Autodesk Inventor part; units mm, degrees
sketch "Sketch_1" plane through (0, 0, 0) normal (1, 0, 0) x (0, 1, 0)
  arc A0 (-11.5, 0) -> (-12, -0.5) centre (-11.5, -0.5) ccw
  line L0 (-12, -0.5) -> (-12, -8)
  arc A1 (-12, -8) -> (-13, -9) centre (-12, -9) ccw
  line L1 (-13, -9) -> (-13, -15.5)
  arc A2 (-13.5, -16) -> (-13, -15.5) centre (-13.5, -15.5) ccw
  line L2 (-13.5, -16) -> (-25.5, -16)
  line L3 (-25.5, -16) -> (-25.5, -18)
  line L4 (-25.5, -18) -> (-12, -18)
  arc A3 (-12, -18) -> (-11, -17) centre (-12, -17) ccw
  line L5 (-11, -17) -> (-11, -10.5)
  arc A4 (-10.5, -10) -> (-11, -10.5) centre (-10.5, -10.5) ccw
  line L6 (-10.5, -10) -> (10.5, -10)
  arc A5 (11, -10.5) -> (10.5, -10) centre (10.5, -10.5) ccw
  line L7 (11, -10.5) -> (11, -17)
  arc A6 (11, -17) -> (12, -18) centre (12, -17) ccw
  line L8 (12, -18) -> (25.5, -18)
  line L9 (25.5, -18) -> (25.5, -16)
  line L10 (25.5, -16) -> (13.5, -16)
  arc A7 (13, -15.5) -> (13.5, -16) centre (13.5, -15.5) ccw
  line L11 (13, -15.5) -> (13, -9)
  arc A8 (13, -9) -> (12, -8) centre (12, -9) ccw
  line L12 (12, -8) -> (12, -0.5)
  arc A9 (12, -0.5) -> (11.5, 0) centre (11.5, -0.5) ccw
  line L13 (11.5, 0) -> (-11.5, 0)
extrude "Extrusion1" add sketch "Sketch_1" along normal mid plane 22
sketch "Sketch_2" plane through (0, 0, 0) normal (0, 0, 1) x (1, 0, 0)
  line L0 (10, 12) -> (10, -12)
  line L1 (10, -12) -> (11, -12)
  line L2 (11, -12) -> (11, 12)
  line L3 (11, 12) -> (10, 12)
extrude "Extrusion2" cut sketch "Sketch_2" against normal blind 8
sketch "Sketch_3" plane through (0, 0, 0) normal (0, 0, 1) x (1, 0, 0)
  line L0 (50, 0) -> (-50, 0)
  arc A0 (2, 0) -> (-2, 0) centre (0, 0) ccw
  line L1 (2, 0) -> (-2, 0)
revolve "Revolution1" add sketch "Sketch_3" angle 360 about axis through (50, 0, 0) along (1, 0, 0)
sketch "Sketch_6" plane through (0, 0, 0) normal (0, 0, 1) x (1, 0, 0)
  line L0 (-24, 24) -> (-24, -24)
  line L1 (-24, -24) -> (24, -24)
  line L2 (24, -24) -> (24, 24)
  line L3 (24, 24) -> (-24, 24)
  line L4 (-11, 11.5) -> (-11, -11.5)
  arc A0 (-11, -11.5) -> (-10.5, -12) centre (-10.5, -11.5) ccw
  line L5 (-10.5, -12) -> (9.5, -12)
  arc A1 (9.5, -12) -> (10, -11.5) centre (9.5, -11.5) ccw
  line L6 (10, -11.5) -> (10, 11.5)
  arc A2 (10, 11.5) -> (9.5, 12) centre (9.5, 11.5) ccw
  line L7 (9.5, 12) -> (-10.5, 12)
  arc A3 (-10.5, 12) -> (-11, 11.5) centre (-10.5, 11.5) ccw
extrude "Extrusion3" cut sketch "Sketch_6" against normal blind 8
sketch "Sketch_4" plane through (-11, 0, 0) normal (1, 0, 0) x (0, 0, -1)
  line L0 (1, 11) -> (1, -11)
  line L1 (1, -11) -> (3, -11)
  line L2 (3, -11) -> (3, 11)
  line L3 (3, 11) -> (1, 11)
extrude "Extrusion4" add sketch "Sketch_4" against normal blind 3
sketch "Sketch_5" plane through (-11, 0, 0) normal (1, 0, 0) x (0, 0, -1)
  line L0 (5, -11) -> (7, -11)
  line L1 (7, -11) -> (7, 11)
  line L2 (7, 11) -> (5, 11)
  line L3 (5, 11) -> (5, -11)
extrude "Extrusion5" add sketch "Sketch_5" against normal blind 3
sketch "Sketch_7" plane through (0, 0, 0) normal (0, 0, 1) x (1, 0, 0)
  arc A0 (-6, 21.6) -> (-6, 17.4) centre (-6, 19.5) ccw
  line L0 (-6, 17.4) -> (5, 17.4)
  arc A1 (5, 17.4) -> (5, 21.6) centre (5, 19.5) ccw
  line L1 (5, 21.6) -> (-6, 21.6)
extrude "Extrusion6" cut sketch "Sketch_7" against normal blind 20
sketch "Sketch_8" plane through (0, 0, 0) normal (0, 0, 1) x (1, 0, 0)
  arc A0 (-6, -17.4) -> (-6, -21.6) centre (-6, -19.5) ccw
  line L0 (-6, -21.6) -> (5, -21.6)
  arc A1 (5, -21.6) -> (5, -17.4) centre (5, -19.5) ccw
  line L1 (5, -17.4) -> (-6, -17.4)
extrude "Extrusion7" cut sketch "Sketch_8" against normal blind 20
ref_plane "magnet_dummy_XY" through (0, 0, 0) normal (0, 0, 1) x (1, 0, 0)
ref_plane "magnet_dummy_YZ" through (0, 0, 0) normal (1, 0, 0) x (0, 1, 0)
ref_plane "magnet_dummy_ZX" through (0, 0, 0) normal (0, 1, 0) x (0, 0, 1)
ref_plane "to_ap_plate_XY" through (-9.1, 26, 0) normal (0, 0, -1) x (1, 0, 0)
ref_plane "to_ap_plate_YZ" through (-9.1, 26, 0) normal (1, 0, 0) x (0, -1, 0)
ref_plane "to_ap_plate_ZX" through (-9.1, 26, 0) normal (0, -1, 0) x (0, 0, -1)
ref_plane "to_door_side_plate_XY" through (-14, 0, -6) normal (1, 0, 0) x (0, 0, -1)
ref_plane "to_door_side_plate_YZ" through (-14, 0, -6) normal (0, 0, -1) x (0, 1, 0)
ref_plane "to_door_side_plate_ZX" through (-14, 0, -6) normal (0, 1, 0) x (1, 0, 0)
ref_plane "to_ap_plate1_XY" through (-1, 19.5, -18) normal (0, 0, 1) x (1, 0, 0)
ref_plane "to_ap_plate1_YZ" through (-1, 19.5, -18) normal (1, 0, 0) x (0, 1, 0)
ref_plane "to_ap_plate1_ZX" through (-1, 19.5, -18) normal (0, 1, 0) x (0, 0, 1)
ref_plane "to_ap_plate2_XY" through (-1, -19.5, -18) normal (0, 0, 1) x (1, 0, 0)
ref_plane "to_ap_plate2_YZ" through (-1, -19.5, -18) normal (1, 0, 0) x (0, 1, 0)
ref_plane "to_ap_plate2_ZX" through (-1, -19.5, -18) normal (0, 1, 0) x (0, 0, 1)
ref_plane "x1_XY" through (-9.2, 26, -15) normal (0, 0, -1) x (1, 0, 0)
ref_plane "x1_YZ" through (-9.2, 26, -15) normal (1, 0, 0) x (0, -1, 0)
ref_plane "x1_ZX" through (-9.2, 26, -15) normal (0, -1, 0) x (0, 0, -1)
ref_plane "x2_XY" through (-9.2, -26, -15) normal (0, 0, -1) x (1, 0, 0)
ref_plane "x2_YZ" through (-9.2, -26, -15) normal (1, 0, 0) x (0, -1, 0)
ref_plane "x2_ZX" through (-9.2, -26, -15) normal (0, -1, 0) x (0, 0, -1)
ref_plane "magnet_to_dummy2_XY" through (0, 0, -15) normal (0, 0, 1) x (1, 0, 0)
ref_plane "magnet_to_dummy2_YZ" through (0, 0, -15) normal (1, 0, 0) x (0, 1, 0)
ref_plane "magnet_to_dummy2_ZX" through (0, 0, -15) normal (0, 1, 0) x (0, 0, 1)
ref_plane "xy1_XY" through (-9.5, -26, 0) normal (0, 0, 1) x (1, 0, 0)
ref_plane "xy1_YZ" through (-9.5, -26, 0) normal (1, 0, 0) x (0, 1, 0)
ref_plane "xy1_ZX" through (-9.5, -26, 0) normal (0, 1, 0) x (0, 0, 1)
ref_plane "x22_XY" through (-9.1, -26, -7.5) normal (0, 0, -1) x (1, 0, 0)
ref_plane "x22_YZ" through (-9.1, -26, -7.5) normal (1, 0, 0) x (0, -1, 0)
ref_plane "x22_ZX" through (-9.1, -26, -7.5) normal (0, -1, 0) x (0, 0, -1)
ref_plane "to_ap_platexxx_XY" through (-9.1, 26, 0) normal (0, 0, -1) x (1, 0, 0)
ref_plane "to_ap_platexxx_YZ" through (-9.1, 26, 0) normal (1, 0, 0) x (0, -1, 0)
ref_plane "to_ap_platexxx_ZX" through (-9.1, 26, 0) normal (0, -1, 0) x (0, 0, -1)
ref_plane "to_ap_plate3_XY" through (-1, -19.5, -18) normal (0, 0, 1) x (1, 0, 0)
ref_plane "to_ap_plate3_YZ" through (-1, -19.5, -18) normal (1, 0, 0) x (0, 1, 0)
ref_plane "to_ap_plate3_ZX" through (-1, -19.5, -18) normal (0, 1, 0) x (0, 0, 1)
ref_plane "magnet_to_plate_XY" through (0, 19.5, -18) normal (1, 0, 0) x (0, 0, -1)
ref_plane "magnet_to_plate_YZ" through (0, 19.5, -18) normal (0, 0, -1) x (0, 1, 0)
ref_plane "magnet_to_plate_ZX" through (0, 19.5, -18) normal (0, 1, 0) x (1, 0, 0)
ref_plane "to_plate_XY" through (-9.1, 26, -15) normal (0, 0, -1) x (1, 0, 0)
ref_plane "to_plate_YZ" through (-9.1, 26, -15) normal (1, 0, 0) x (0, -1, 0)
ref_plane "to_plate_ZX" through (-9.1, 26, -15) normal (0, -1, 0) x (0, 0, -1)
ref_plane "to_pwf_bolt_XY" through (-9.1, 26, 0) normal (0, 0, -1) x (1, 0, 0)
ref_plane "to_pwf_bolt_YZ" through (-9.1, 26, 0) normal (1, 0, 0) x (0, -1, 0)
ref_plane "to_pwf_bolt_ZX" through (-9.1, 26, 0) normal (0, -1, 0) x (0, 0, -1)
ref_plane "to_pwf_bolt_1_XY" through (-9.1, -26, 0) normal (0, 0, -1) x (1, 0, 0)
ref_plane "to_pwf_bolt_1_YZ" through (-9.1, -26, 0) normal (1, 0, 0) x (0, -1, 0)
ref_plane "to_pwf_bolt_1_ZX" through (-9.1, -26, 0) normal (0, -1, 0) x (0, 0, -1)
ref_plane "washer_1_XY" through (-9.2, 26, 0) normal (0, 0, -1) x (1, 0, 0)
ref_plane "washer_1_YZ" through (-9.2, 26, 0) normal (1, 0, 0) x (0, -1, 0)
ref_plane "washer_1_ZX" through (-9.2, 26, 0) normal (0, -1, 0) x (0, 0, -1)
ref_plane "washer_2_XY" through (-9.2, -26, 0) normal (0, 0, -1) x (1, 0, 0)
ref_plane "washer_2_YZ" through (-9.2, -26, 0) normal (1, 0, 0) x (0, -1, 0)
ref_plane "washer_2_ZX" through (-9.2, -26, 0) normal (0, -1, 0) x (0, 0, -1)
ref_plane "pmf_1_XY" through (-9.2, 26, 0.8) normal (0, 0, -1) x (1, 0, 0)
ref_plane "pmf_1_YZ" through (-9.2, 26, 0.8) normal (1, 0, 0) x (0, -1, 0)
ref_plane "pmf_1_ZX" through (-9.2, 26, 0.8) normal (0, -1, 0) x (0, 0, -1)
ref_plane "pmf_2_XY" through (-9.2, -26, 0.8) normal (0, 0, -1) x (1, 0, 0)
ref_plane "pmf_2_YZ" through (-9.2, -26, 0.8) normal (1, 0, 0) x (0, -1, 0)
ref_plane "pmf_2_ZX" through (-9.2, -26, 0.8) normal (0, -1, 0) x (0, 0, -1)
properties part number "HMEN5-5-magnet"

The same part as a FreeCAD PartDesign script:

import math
import FreeCAD as App
import Part
import Sketcher
from FreeCAD import Vector


def add_polygon(sketch, points):
    """Adds a closed chain of lines whose ends are joined by coincident constraints."""
    first, n = sketch.GeometryCount, len(points)
    for a, b in zip(points, points[1:] + points[:1]):
        sketch.addGeometry(Part.LineSegment(App.Vector(*a, 0), App.Vector(*b, 0)), False)
    for i in range(n):
        sketch.addConstraint(Sketcher.Constraint("Coincident", first + i, 2, first + (i + 1) % n, 1))

doc = App.newDocument("Part")
body = doc.addObject("PartDesign::Body", "Body")

# Sketch on YZ plane
sketch1 = doc.addObject("Sketcher::SketchObject", "Sketch")
body.addObject(sketch1)
sketch1.AttachmentSupport = (doc.YZ_Plane, [""])
sketch1.MapMode = "FlatFace"
sketch1.addGeometry([
    Part.LineSegment(Vector(11.5, 0, 0), Vector(-11.5, 0, 0)),  # 0
    Part.ArcOfCircle(Part.Circle(Vector(-11.5, -0.5, 0), Vector(0, 0, 1), 0.5), math.radians(90), math.radians(180)),  # 1
    Part.LineSegment(Vector(-12, -0.5, 0), Vector(-12, -8, 0)),  # 2
    Part.ArcOfCircle(Part.Circle(Vector(-12, -9, 0), Vector(0, 0, 1), 1), math.radians(90), math.radians(180)),  # 3
    Part.LineSegment(Vector(-13, -9, 0), Vector(-13, -15.5, 0)),  # 4
    Part.ArcOfCircle(Part.Circle(Vector(-13.5, -15.5, 0), Vector(0, 0, 1), 0.5), math.radians(-90), math.radians(0)),  # 5
    Part.LineSegment(Vector(-13.5, -16, 0), Vector(-25.5, -16, 0)),  # 6
    Part.LineSegment(Vector(-25.5, -16, 0), Vector(-25.5, -18, 0)),  # 7
    Part.LineSegment(Vector(-25.5, -18, 0), Vector(-12, -18, 0)),  # 8
    Part.ArcOfCircle(Part.Circle(Vector(-12, -17, 0), Vector(0, 0, 1), 1), math.radians(-90), math.radians(0)),  # 9
    Part.LineSegment(Vector(-11, -17, 0), Vector(-11, -10.5, 0)),  # 10
    Part.ArcOfCircle(Part.Circle(Vector(-10.5, -10.5, 0), Vector(0, 0, 1), 0.5), math.radians(90), math.radians(180)),  # 11
    Part.LineSegment(Vector(-10.5, -10, 0), Vector(10.5, -10, 0)),  # 12
    Part.ArcOfCircle(Part.Circle(Vector(10.5, -10.5, 0), Vector(0, 0, 1), 0.5), math.radians(0), math.radians(90)),  # 13
    Part.LineSegment(Vector(11, -10.5, 0), Vector(11, -17, 0)),  # 14
    Part.ArcOfCircle(Part.Circle(Vector(12, -17, 0), Vector(0, 0, 1), 1), math.radians(180), math.radians(270)),  # 15
    Part.LineSegment(Vector(12, -18, 0), Vector(25.5, -18, 0)),  # 16
    Part.LineSegment(Vector(25.5, -18, 0), Vector(25.5, -16, 0)),  # 17
    Part.LineSegment(Vector(25.5, -16, 0), Vector(13.5, -16, 0)),  # 18
    Part.ArcOfCircle(Part.Circle(Vector(13.5, -15.5, 0), Vector(0, 0, 1), 0.5), math.radians(180), math.radians(270)),  # 19
    Part.LineSegment(Vector(13, -15.5, 0), Vector(13, -9, 0)),  # 20
    Part.ArcOfCircle(Part.Circle(Vector(12, -9, 0), Vector(0, 0, 1), 1), math.radians(0), math.radians(90)),  # 21
    Part.LineSegment(Vector(12, -8, 0), Vector(12, -0.5, 0)),  # 22
    Part.ArcOfCircle(Part.Circle(Vector(11.5, -0.5, 0), Vector(0, 0, 1), 0.5), math.radians(0), math.radians(90)),  # 23
], False)
sketch1.addConstraint([
    Sketcher.Constraint("Tangent", 0, 2, 1, 1),
    Sketcher.Constraint("Tangent", 1, 2, 2, 1),
    Sketcher.Constraint("Coincident", 2, 2, 3, 1),
    Sketcher.Constraint("Tangent", 3, 2, 4, 1),
    Sketcher.Constraint("Tangent", 4, 2, 5, 2),
    Sketcher.Constraint("Tangent", 5, 1, 6, 1),
    Sketcher.Constraint("Coincident", 6, 2, 7, 1),
    Sketcher.Constraint("Coincident", 7, 2, 8, 1),
    Sketcher.Constraint("Tangent", 8, 2, 9, 1),
    Sketcher.Constraint("Tangent", 9, 2, 10, 1),
    Sketcher.Constraint("Tangent", 10, 2, 11, 2),
    Sketcher.Constraint("Tangent", 11, 1, 12, 1),
    Sketcher.Constraint("Tangent", 12, 2, 13, 2),
    Sketcher.Constraint("Tangent", 13, 1, 14, 1),
    Sketcher.Constraint("Tangent", 14, 2, 15, 1),
    Sketcher.Constraint("Tangent", 15, 2, 16, 1),
    Sketcher.Constraint("Coincident", 16, 2, 17, 1),
    Sketcher.Constraint("Coincident", 17, 2, 18, 1),
    Sketcher.Constraint("Tangent", 18, 2, 19, 2),
    Sketcher.Constraint("Tangent", 19, 1, 20, 1),
    Sketcher.Constraint("Tangent", 20, 2, 21, 1),
    Sketcher.Constraint("Coincident", 21, 2, 22, 1),
    Sketcher.Constraint("Tangent", 22, 2, 23, 1),
    Sketcher.Constraint("Tangent", 23, 2, 0, 1),
    Sketcher.Constraint("Horizontal", 0),
    Sketcher.Constraint("Vertical", 2),
    Sketcher.Constraint("Vertical", 4),
    Sketcher.Constraint("Horizontal", 6),
    Sketcher.Constraint("Vertical", 7),
    Sketcher.Constraint("Horizontal", 8),
    Sketcher.Constraint("Vertical", 10),
    Sketcher.Constraint("Horizontal", 12),
    Sketcher.Constraint("Vertical", 14),
    Sketcher.Constraint("Horizontal", 16),
    Sketcher.Constraint("Vertical", 17),
    Sketcher.Constraint("Horizontal", 18),
    Sketcher.Constraint("Vertical", 20),
    Sketcher.Constraint("Vertical", 22),
    Sketcher.Constraint("Equal", 1, 5),
    Sketcher.Constraint("Equal", 3, 9),
    Sketcher.Constraint("Equal", 5, 11),
    Sketcher.Constraint("Equal", 11, 13),
    Sketcher.Constraint("Equal", 9, 15),
    Sketcher.Constraint("Equal", 13, 19),
    Sketcher.Constraint("Equal", 15, 21),
    Sketcher.Constraint("Equal", 19, 23),
    Sketcher.Constraint("Symmetric", 0, 2, 23, 2, -1, 1),
    Sketcher.Constraint("Symmetric", 9, 3, 15, 3, -2),
    Sketcher.Constraint("Symmetric", 5, 3, 19, 3, -2),
    Sketcher.Constraint("Horizontal", 3, 3, 21, 3),
    Sketcher.Constraint("Vertical", 3, 3, 9, 3),
    Sketcher.Constraint("Vertical", 9, 3, 1, 2),
    Sketcher.Constraint("Equal", 8, 16),
    Sketcher.Constraint("Equal", 4, 10),
    Sketcher.Constraint("Radius", 3, 1.0),
    Sketcher.Constraint("Radius", 1, 0.5),
    Sketcher.Constraint("DistanceX", 0, 2, 0, 1, 23.0),
    Sketcher.Constraint("DistanceX", 6, 2, 6, 1, 12.0),
    Sketcher.Constraint("DistanceY", 7, 2, 7, 1, 2.0),
    Sketcher.Constraint("DistanceY", 2, 2, 2, 1, 7.5),
    Sketcher.Constraint("DistanceY", 4, 2, 4, 1, 6.5),
])
pad1 = doc.addObject("PartDesign::Pad", "Pad")
body.addObject(pad1)
pad1.Profile = sketch1
pad1.Length = 22
pad1.Midplane = True

# Sketch on XY plane
sketch2 = doc.addObject("Sketcher::SketchObject", "Sketch001")
body.addObject(sketch2)
sketch2.AttachmentSupport = (doc.XY_Plane, [""])
sketch2.MapMode = "FlatFace"
add_polygon(sketch2, [(11, 12), (10, 12), (10, -12), (11, -12)])  # lines 0-3
sketch2.addConstraint([
    Sketcher.Constraint("Horizontal", 0),
    Sketcher.Constraint("Vertical", 1),
    Sketcher.Constraint("Horizontal", 2),
    Sketcher.Constraint("Vertical", 3),
    Sketcher.Constraint("DistanceX", 0, 2, 0, 1, 1.0),
    Sketcher.Constraint("DistanceY", 1, 2, 1, 1, 24.0),
    Sketcher.Constraint("DistanceX", -1, 1, 0, 2, 10.0),
    Sketcher.Constraint("DistanceY", -1, 1, 0, 2, 12.0),
])
pocket1 = doc.addObject("PartDesign::Pocket", "Pocket")
body.addObject(pocket1)
pocket1.Profile = sketch2
pocket1.Length = 8

# Sketch on XY plane
sketch3 = doc.addObject("Sketcher::SketchObject", "Sketch002")
body.addObject(sketch3)
sketch3.AttachmentSupport = (doc.XY_Plane, [""])
sketch3.MapMode = "FlatFace"
sketch3.addGeometry([
    Part.LineSegment(Vector(-2, 0, 0), Vector(2, 0, 0)),
    Part.ArcOfCircle(Part.Circle(Vector(0, 0, 0), Vector(0, 0, 1), 2), math.radians(0), math.radians(180)),
], False)
sketch3.addConstraint([
    Sketcher.Constraint("Coincident", 0, 1, 1, 2),
    Sketcher.Constraint("Coincident", 1, 1, 0, 2),
    Sketcher.Constraint("Horizontal", 0),
    Sketcher.Constraint("Coincident", 1, 3, -1, 1),
    Sketcher.Constraint("PointOnObject", 0, 1, -1),
    Sketcher.Constraint("Radius", 1, 2.0),
])
revolution = doc.addObject("PartDesign::Revolution", "Revolution")
body.addObject(revolution)
revolution.Profile = sketch3
revolution.ReferenceAxis = (sketch3, ["H_Axis"])
revolution.Angle = 360

# Sketch on XY plane
sketch4 = doc.addObject("Sketcher::SketchObject", "Sketch003")
body.addObject(sketch4)
sketch4.AttachmentSupport = (doc.XY_Plane, [""])
sketch4.MapMode = "FlatFace"
add_polygon(sketch4, [(24, 24), (-24, 24), (-24, -24), (24, -24)])  # lines 0-3
sketch4.addGeometry(Part.LineSegment(Vector(-11, -11.5, 0), Vector(-11, 11.5, 0)), False)  # 4
sketch4.addGeometry(Part.ArcOfCircle(Part.Circle(Vector(-10.5, 11.5, 0), Vector(0, 0, 1), 0.5), math.radians(90), math.radians(180)), False)  # 5
sketch4.addGeometry(Part.LineSegment(Vector(-10.5, 12, 0), Vector(9.5, 12, 0)), False)  # 6
sketch4.addGeometry(Part.ArcOfCircle(Part.Circle(Vector(9.5, 11.5, 0), Vector(0, 0, 1), 0.5), math.radians(0), math.radians(90)), False)  # 7
sketch4.addGeometry(Part.LineSegment(Vector(10, 11.5, 0), Vector(10, -11.5, 0)), False)  # 8
sketch4.addGeometry(Part.ArcOfCircle(Part.Circle(Vector(9.5, -11.5, 0), Vector(0, 0, 1), 0.5), math.radians(-90), math.radians(0)), False)  # 9
sketch4.addGeometry(Part.LineSegment(Vector(9.5, -12, 0), Vector(-10.5, -12, 0)), False)  # 10
sketch4.addGeometry(Part.ArcOfCircle(Part.Circle(Vector(-10.5, -11.5, 0), Vector(0, 0, 1), 0.5), math.radians(180), math.radians(270)), False)  # 11
sketch4.addConstraint([
    Sketcher.Constraint("Tangent", 4, 2, 5, 2),
    Sketcher.Constraint("Tangent", 5, 1, 6, 1),
    Sketcher.Constraint("Tangent", 6, 2, 7, 2),
    Sketcher.Constraint("Tangent", 7, 1, 8, 1),
    Sketcher.Constraint("Tangent", 8, 2, 9, 2),
    Sketcher.Constraint("Tangent", 9, 1, 10, 1),
    Sketcher.Constraint("Tangent", 10, 2, 11, 2),
    Sketcher.Constraint("Tangent", 11, 1, 4, 1),
    Sketcher.Constraint("Horizontal", 0),
    Sketcher.Constraint("Vertical", 1),
    Sketcher.Constraint("Horizontal", 2),
    Sketcher.Constraint("Vertical", 3),
    Sketcher.Constraint("Vertical", 4),
    Sketcher.Constraint("Horizontal", 6),
    Sketcher.Constraint("Vertical", 8),
    Sketcher.Constraint("Horizontal", 10),
    Sketcher.Constraint("Equal", 5, 7),
    Sketcher.Constraint("Equal", 7, 9),
    Sketcher.Constraint("Equal", 9, 11),
    Sketcher.Constraint("Symmetric", 0, 2, 2, 2, -1, 1),
    Sketcher.Constraint("Equal", 2, 1),
    Sketcher.Constraint("Radius", 5, 0.5),
    Sketcher.Constraint("DistanceX", 0, 2, 0, 1, 48.0),
    Sketcher.Constraint("DistanceX", 6, 1, 6, 2, 20.0),
    Sketcher.Constraint("DistanceY", 4, 1, 4, 2, 23.0),
    Sketcher.Constraint("DistanceX", 4, 2, -1, 1, 11.0),
    Sketcher.Constraint("DistanceY", -1, 1, 5, 1, 12.0),
])
pocket2 = doc.addObject("PartDesign::Pocket", "Pocket001")
body.addObject(pocket2)
pocket2.Profile = sketch4
pocket2.Length = 8

# Sketch on YZ plane
sketch5 = doc.addObject("Sketcher::SketchObject", "Sketch004")
body.addObject(sketch5)
sketch5.AttachmentSupport = (doc.YZ_Plane, [""])
sketch5.MapMode = "FlatFace"
sketch5.AttachmentOffset = App.Placement(Vector(0, 0, -11), App.Rotation())
add_polygon(sketch5, [(11, -3), (11, -1), (-11, -1), (-11, -3)])  # lines 0-3
sketch5.addConstraint([
    Sketcher.Constraint("Vertical", 0),
    Sketcher.Constraint("Horizontal", 1),
    Sketcher.Constraint("Vertical", 2),
    Sketcher.Constraint("Horizontal", 3),
    Sketcher.Constraint("DistanceX", 1, 2, 1, 1, 22.0),
    Sketcher.Constraint("DistanceY", 0, 1, 0, 2, 2.0),
    Sketcher.Constraint("DistanceX", -1, 1, 0, 2, 11.0),
    Sketcher.Constraint("DistanceY", 0, 2, -1, 1, 1.0),
])
pad2 = doc.addObject("PartDesign::Pad", "Pad001")
body.addObject(pad2)
pad2.Profile = sketch5
pad2.Length = 3
pad2.Reversed = True

# Sketch on YZ plane
sketch6 = doc.addObject("Sketcher::SketchObject", "Sketch005")
body.addObject(sketch6)
sketch6.AttachmentSupport = (doc.YZ_Plane, [""])
sketch6.MapMode = "FlatFace"
sketch6.AttachmentOffset = App.Placement(Vector(0, 0, -11), App.Rotation())
add_polygon(sketch6, [(11, -5), (-11, -5), (-11, -7), (11, -7)])  # lines 0-3
sketch6.addConstraint([
    Sketcher.Constraint("Horizontal", 0),
    Sketcher.Constraint("Vertical", 1),
    Sketcher.Constraint("Horizontal", 2),
    Sketcher.Constraint("Vertical", 3),
    Sketcher.Constraint("DistanceX", 0, 2, 0, 1, 22.0),
    Sketcher.Constraint("DistanceY", 1, 2, 1, 1, 2.0),
    Sketcher.Constraint("DistanceX", 0, 2, -1, 1, 11.0),
    Sketcher.Constraint("DistanceY", 0, 2, -1, 1, 5.0),
])
pad3 = doc.addObject("PartDesign::Pad", "Pad002")
body.addObject(pad3)
pad3.Profile = sketch6
pad3.Length = 3
pad3.Reversed = True

# Sketch on XY plane
sketch7 = doc.addObject("Sketcher::SketchObject", "Sketch006")
body.addObject(sketch7)
sketch7.AttachmentSupport = (doc.XY_Plane, [""])
sketch7.MapMode = "FlatFace"
sketch7.addGeometry([
    Part.LineSegment(Vector(5, 21.6, 0), Vector(-6, 21.6, 0)),
    Part.ArcOfCircle(Part.Circle(Vector(-6, 19.5, 0), Vector(0, 0, 1), 2.1), math.radians(90), math.radians(270)),
    Part.LineSegment(Vector(-6, 17.4, 0), Vector(5, 17.4, 0)),
    Part.ArcOfCircle(Part.Circle(Vector(5, 19.5, 0), Vector(0, 0, 1), 2.1), math.radians(-90), math.radians(90)),
], False)
sketch7.addConstraint([
    Sketcher.Constraint("Tangent", 0, 2, 1, 1),
    Sketcher.Constraint("Tangent", 1, 2, 2, 1),
    Sketcher.Constraint("Tangent", 2, 2, 3, 1),
    Sketcher.Constraint("Tangent", 3, 2, 0, 1),
    Sketcher.Constraint("Horizontal", 0),
    Sketcher.Constraint("Horizontal", 2),
    Sketcher.Constraint("Radius", 1, 2.1),
    Sketcher.Constraint("DistanceX", 0, 2, 0, 1, 11.0),
    Sketcher.Constraint("DistanceX", 1, 3, -1, 1, 6.0),
    Sketcher.Constraint("DistanceY", -1, 1, 1, 3, 19.5),
])
pocket3 = doc.addObject("PartDesign::Pocket", "Pocket002")
body.addObject(pocket3)
pocket3.Profile = sketch7
pocket3.Length = 20

# Sketch on XY plane
sketch8 = doc.addObject("Sketcher::SketchObject", "Sketch007")
body.addObject(sketch8)
sketch8.AttachmentSupport = (doc.XY_Plane, [""])
sketch8.MapMode = "FlatFace"
sketch8.addGeometry([
    Part.LineSegment(Vector(5, -17.4, 0), Vector(-6, -17.4, 0)),
    Part.ArcOfCircle(Part.Circle(Vector(-6, -19.5, 0), Vector(0, 0, 1), 2.1), math.radians(90), math.radians(270)),
    Part.LineSegment(Vector(-6, -21.6, 0), Vector(5, -21.6, 0)),
    Part.ArcOfCircle(Part.Circle(Vector(5, -19.5, 0), Vector(0, 0, 1), 2.1), math.radians(-90), math.radians(90)),
], False)
sketch8.addConstraint([
    Sketcher.Constraint("Tangent", 0, 2, 1, 1),
    Sketcher.Constraint("Tangent", 1, 2, 2, 1),
    Sketcher.Constraint("Tangent", 2, 2, 3, 1),
    Sketcher.Constraint("Tangent", 3, 2, 0, 1),
    Sketcher.Constraint("Horizontal", 0),
    Sketcher.Constraint("Horizontal", 2),
    Sketcher.Constraint("Radius", 1, 2.1),
    Sketcher.Constraint("DistanceX", 0, 2, 0, 1, 11.0),
    Sketcher.Constraint("DistanceX", 1, 3, -1, 1, 6.0),
    Sketcher.Constraint("DistanceY", 1, 3, -1, 1, 19.5),
])
pocket4 = doc.addObject("PartDesign::Pocket", "Pocket003")
body.addObject(pocket4)
pocket4.Profile = sketch8
pocket4.Length = 20

doc.recompute()
